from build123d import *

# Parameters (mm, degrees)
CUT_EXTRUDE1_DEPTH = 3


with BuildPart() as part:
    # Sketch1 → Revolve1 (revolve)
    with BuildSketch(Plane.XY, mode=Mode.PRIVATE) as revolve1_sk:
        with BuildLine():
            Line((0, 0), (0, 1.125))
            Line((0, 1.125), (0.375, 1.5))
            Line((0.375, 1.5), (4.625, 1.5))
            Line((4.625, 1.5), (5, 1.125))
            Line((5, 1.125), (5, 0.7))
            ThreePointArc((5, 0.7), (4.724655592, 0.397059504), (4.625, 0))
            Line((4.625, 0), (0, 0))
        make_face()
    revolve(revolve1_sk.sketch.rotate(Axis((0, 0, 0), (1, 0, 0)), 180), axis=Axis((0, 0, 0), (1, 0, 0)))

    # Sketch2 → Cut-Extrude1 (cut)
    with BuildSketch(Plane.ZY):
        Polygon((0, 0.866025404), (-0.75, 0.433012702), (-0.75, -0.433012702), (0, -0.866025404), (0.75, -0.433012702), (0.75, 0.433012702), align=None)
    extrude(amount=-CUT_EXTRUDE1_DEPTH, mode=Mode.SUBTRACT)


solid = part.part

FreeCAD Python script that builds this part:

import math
import FreeCAD as App
import Part
import Sketcher
Q = App.Units.Quantity


def add_polygon(sketch, points):
    """Adds a closed chain of lines whose ends are joined by coincident constraints."""
    first, n = sketch.GeometryCount, len(points)
    for a, b in zip(points, points[1:] + points[:1]):
        sketch.addGeometry(Part.LineSegment(App.Vector(*a, 0), App.Vector(*b, 0)), False)
    for i in range(n):
        sketch.addConstraint(Sketcher.Constraint("Coincident", first + i, 2, first + (i + 1) % n, 1))

doc = App.newDocument("Part")
body = doc.addObject("PartDesign::Body", "Body")

# Sketch on XY plane
sketch1 = doc.addObject("Sketcher::SketchObject", "Sketch")
body.addObject(sketch1)
sketch1.AttachmentSupport = (doc.XY_Plane, [""])
sketch1.MapMode = "FlatFace"
sketch1.addGeometry(Part.LineSegment(App.Vector(0, 1.12, 0), App.Vector(0, 0, 0)), False)
sketch1.addGeometry(Part.LineSegment(App.Vector(0, 0, 0), App.Vector(4.62, 0, 0)), False)
sketch1.addGeometry(Part.ArcOfCircle(Part.Circle(App.Vector(5.47, 0, 0), App.Vector(0, 0, 1), 0.84), math.radians(124), math.radians(180)), False)
sketch1.addGeometry(Part.LineSegment(App.Vector(5, 0.7, 0), App.Vector(5, 1.12, 0)), False)
sketch1.addGeometry(Part.LineSegment(App.Vector(5, 1.12, 0), App.Vector(4.62, 1.5, 0)), False)
sketch1.addGeometry(Part.LineSegment(App.Vector(4.62, 1.5, 0), App.Vector(0.38, 1.5, 0)), False)
sketch1.addGeometry(Part.LineSegment(App.Vector(0.38, 1.5, 0), App.Vector(0, 1.12, 0)), False)
sketch1.addConstraint(Sketcher.Constraint("Coincident", 0, 2, 1, 1))
sketch1.addConstraint(Sketcher.Constraint("Coincident", 1, 2, 2, 2))
sketch1.addConstraint(Sketcher.Constraint("Coincident", 2, 1, 3, 1))
sketch1.addConstraint(Sketcher.Constraint("Coincident", 3, 2, 4, 1))
sketch1.addConstraint(Sketcher.Constraint("Coincident", 4, 2, 5, 1))
sketch1.addConstraint(Sketcher.Constraint("Coincident", 5, 2, 6, 1))
sketch1.addConstraint(Sketcher.Constraint("Coincident", 6, 2, 0, 1))
sketch1.addConstraint(Sketcher.Constraint("Vertical", 0))
sketch1.addConstraint(Sketcher.Constraint("Horizontal", 1))
sketch1.addConstraint(Sketcher.Constraint("Vertical", 3))
sketch1.addConstraint(Sketcher.Constraint("Horizontal", 5))
sketch1.addConstraint(Sketcher.Constraint("Coincident", 0, 2, -1, 1))
sketch1.addConstraint(Sketcher.Constraint("PointOnObject", 2, 3, -1))
sketch1.addConstraint(Sketcher.Constraint("Perpendicular", 4, 6))
sketch1.addConstraint(Sketcher.Constraint("Horizontal", 3, 2, 6, 2))
sketch1.addConstraint(Sketcher.Constraint("Vertical", 1, 2, 4, 2))
sketch1.addConstraint(Sketcher.Constraint("Equal", 4, 6))
sketch1.addConstraint(Sketcher.Constraint("DistanceX", -1, 1, 2, 1, Q("5 mm")))
sketch1.addConstraint(Sketcher.Constraint("DistanceX", 5, 2, 5, 1, Q("4.25 mm")))
sketch1.addConstraint(Sketcher.Constraint("DistanceY", -1, 1, 2, 1, Q("0.7 mm")))
sketch1.addConstraint(Sketcher.Constraint("DistanceY", -1, 1, 4, 2, Q("1.5 mm")))
revolution = doc.addObject("PartDesign::Revolution", "Revolution")
body.addObject(revolution)
revolution.Profile = sketch1
revolution.ReferenceAxis = (sketch1, ["H_Axis"])
revolution.Angle = 360

# Sketch on YZ plane
sketch2 = doc.addObject("Sketcher::SketchObject", "Sketch001")
body.addObject(sketch2)
sketch2.AttachmentSupport = (doc.YZ_Plane, [""])
sketch2.MapMode = "FlatFace"
add_polygon(sketch2, [(0.9, 0), (0.4, -0.8), (-0.4, -0.8), (-0.9, 0), (-0.4, 0.8), (0.4, 0.8)])  # lines 0-5
sketch2.addConstraint(Sketcher.Constraint("Horizontal", 1))
sketch2.addConstraint(Sketcher.Constraint("Horizontal", 4))
sketch2.addConstraint(Sketcher.Constraint("Symmetric", 0, 2, 3, 2, -1, 1))
sketch2.addConstraint(Sketcher.Constraint("Symmetric", 2, 2, 5, 2, -1, 1))
sketch2.addConstraint(Sketcher.Constraint("PointOnObject", 2, 2, -1))
sketch2.addConstraint(Sketcher.Constraint("Parallel", 2, 5))
sketch2.addConstraint(Sketcher.Constraint("Vertical", 1, 2, 3, 2))
sketch2.addConstraint(Sketcher.Constraint("Angle", 0, Q("-120 deg")))
sketch2.addConstraint(Sketcher.Constraint("DistanceY", 1, 2, 3, 2, Q("1.5 mm")))
sketch2.addConstraint(Sketcher.Constraint("DistanceX", 1, 2, 1, 1, Q("0.866025 mm")))
pocket1 = doc.addObject("PartDesign::Pocket", "Pocket")
body.addObject(pocket1)
pocket1.Profile = sketch2
pocket1.Length = 3
pocket1.Reversed = True

doc.recompute()
